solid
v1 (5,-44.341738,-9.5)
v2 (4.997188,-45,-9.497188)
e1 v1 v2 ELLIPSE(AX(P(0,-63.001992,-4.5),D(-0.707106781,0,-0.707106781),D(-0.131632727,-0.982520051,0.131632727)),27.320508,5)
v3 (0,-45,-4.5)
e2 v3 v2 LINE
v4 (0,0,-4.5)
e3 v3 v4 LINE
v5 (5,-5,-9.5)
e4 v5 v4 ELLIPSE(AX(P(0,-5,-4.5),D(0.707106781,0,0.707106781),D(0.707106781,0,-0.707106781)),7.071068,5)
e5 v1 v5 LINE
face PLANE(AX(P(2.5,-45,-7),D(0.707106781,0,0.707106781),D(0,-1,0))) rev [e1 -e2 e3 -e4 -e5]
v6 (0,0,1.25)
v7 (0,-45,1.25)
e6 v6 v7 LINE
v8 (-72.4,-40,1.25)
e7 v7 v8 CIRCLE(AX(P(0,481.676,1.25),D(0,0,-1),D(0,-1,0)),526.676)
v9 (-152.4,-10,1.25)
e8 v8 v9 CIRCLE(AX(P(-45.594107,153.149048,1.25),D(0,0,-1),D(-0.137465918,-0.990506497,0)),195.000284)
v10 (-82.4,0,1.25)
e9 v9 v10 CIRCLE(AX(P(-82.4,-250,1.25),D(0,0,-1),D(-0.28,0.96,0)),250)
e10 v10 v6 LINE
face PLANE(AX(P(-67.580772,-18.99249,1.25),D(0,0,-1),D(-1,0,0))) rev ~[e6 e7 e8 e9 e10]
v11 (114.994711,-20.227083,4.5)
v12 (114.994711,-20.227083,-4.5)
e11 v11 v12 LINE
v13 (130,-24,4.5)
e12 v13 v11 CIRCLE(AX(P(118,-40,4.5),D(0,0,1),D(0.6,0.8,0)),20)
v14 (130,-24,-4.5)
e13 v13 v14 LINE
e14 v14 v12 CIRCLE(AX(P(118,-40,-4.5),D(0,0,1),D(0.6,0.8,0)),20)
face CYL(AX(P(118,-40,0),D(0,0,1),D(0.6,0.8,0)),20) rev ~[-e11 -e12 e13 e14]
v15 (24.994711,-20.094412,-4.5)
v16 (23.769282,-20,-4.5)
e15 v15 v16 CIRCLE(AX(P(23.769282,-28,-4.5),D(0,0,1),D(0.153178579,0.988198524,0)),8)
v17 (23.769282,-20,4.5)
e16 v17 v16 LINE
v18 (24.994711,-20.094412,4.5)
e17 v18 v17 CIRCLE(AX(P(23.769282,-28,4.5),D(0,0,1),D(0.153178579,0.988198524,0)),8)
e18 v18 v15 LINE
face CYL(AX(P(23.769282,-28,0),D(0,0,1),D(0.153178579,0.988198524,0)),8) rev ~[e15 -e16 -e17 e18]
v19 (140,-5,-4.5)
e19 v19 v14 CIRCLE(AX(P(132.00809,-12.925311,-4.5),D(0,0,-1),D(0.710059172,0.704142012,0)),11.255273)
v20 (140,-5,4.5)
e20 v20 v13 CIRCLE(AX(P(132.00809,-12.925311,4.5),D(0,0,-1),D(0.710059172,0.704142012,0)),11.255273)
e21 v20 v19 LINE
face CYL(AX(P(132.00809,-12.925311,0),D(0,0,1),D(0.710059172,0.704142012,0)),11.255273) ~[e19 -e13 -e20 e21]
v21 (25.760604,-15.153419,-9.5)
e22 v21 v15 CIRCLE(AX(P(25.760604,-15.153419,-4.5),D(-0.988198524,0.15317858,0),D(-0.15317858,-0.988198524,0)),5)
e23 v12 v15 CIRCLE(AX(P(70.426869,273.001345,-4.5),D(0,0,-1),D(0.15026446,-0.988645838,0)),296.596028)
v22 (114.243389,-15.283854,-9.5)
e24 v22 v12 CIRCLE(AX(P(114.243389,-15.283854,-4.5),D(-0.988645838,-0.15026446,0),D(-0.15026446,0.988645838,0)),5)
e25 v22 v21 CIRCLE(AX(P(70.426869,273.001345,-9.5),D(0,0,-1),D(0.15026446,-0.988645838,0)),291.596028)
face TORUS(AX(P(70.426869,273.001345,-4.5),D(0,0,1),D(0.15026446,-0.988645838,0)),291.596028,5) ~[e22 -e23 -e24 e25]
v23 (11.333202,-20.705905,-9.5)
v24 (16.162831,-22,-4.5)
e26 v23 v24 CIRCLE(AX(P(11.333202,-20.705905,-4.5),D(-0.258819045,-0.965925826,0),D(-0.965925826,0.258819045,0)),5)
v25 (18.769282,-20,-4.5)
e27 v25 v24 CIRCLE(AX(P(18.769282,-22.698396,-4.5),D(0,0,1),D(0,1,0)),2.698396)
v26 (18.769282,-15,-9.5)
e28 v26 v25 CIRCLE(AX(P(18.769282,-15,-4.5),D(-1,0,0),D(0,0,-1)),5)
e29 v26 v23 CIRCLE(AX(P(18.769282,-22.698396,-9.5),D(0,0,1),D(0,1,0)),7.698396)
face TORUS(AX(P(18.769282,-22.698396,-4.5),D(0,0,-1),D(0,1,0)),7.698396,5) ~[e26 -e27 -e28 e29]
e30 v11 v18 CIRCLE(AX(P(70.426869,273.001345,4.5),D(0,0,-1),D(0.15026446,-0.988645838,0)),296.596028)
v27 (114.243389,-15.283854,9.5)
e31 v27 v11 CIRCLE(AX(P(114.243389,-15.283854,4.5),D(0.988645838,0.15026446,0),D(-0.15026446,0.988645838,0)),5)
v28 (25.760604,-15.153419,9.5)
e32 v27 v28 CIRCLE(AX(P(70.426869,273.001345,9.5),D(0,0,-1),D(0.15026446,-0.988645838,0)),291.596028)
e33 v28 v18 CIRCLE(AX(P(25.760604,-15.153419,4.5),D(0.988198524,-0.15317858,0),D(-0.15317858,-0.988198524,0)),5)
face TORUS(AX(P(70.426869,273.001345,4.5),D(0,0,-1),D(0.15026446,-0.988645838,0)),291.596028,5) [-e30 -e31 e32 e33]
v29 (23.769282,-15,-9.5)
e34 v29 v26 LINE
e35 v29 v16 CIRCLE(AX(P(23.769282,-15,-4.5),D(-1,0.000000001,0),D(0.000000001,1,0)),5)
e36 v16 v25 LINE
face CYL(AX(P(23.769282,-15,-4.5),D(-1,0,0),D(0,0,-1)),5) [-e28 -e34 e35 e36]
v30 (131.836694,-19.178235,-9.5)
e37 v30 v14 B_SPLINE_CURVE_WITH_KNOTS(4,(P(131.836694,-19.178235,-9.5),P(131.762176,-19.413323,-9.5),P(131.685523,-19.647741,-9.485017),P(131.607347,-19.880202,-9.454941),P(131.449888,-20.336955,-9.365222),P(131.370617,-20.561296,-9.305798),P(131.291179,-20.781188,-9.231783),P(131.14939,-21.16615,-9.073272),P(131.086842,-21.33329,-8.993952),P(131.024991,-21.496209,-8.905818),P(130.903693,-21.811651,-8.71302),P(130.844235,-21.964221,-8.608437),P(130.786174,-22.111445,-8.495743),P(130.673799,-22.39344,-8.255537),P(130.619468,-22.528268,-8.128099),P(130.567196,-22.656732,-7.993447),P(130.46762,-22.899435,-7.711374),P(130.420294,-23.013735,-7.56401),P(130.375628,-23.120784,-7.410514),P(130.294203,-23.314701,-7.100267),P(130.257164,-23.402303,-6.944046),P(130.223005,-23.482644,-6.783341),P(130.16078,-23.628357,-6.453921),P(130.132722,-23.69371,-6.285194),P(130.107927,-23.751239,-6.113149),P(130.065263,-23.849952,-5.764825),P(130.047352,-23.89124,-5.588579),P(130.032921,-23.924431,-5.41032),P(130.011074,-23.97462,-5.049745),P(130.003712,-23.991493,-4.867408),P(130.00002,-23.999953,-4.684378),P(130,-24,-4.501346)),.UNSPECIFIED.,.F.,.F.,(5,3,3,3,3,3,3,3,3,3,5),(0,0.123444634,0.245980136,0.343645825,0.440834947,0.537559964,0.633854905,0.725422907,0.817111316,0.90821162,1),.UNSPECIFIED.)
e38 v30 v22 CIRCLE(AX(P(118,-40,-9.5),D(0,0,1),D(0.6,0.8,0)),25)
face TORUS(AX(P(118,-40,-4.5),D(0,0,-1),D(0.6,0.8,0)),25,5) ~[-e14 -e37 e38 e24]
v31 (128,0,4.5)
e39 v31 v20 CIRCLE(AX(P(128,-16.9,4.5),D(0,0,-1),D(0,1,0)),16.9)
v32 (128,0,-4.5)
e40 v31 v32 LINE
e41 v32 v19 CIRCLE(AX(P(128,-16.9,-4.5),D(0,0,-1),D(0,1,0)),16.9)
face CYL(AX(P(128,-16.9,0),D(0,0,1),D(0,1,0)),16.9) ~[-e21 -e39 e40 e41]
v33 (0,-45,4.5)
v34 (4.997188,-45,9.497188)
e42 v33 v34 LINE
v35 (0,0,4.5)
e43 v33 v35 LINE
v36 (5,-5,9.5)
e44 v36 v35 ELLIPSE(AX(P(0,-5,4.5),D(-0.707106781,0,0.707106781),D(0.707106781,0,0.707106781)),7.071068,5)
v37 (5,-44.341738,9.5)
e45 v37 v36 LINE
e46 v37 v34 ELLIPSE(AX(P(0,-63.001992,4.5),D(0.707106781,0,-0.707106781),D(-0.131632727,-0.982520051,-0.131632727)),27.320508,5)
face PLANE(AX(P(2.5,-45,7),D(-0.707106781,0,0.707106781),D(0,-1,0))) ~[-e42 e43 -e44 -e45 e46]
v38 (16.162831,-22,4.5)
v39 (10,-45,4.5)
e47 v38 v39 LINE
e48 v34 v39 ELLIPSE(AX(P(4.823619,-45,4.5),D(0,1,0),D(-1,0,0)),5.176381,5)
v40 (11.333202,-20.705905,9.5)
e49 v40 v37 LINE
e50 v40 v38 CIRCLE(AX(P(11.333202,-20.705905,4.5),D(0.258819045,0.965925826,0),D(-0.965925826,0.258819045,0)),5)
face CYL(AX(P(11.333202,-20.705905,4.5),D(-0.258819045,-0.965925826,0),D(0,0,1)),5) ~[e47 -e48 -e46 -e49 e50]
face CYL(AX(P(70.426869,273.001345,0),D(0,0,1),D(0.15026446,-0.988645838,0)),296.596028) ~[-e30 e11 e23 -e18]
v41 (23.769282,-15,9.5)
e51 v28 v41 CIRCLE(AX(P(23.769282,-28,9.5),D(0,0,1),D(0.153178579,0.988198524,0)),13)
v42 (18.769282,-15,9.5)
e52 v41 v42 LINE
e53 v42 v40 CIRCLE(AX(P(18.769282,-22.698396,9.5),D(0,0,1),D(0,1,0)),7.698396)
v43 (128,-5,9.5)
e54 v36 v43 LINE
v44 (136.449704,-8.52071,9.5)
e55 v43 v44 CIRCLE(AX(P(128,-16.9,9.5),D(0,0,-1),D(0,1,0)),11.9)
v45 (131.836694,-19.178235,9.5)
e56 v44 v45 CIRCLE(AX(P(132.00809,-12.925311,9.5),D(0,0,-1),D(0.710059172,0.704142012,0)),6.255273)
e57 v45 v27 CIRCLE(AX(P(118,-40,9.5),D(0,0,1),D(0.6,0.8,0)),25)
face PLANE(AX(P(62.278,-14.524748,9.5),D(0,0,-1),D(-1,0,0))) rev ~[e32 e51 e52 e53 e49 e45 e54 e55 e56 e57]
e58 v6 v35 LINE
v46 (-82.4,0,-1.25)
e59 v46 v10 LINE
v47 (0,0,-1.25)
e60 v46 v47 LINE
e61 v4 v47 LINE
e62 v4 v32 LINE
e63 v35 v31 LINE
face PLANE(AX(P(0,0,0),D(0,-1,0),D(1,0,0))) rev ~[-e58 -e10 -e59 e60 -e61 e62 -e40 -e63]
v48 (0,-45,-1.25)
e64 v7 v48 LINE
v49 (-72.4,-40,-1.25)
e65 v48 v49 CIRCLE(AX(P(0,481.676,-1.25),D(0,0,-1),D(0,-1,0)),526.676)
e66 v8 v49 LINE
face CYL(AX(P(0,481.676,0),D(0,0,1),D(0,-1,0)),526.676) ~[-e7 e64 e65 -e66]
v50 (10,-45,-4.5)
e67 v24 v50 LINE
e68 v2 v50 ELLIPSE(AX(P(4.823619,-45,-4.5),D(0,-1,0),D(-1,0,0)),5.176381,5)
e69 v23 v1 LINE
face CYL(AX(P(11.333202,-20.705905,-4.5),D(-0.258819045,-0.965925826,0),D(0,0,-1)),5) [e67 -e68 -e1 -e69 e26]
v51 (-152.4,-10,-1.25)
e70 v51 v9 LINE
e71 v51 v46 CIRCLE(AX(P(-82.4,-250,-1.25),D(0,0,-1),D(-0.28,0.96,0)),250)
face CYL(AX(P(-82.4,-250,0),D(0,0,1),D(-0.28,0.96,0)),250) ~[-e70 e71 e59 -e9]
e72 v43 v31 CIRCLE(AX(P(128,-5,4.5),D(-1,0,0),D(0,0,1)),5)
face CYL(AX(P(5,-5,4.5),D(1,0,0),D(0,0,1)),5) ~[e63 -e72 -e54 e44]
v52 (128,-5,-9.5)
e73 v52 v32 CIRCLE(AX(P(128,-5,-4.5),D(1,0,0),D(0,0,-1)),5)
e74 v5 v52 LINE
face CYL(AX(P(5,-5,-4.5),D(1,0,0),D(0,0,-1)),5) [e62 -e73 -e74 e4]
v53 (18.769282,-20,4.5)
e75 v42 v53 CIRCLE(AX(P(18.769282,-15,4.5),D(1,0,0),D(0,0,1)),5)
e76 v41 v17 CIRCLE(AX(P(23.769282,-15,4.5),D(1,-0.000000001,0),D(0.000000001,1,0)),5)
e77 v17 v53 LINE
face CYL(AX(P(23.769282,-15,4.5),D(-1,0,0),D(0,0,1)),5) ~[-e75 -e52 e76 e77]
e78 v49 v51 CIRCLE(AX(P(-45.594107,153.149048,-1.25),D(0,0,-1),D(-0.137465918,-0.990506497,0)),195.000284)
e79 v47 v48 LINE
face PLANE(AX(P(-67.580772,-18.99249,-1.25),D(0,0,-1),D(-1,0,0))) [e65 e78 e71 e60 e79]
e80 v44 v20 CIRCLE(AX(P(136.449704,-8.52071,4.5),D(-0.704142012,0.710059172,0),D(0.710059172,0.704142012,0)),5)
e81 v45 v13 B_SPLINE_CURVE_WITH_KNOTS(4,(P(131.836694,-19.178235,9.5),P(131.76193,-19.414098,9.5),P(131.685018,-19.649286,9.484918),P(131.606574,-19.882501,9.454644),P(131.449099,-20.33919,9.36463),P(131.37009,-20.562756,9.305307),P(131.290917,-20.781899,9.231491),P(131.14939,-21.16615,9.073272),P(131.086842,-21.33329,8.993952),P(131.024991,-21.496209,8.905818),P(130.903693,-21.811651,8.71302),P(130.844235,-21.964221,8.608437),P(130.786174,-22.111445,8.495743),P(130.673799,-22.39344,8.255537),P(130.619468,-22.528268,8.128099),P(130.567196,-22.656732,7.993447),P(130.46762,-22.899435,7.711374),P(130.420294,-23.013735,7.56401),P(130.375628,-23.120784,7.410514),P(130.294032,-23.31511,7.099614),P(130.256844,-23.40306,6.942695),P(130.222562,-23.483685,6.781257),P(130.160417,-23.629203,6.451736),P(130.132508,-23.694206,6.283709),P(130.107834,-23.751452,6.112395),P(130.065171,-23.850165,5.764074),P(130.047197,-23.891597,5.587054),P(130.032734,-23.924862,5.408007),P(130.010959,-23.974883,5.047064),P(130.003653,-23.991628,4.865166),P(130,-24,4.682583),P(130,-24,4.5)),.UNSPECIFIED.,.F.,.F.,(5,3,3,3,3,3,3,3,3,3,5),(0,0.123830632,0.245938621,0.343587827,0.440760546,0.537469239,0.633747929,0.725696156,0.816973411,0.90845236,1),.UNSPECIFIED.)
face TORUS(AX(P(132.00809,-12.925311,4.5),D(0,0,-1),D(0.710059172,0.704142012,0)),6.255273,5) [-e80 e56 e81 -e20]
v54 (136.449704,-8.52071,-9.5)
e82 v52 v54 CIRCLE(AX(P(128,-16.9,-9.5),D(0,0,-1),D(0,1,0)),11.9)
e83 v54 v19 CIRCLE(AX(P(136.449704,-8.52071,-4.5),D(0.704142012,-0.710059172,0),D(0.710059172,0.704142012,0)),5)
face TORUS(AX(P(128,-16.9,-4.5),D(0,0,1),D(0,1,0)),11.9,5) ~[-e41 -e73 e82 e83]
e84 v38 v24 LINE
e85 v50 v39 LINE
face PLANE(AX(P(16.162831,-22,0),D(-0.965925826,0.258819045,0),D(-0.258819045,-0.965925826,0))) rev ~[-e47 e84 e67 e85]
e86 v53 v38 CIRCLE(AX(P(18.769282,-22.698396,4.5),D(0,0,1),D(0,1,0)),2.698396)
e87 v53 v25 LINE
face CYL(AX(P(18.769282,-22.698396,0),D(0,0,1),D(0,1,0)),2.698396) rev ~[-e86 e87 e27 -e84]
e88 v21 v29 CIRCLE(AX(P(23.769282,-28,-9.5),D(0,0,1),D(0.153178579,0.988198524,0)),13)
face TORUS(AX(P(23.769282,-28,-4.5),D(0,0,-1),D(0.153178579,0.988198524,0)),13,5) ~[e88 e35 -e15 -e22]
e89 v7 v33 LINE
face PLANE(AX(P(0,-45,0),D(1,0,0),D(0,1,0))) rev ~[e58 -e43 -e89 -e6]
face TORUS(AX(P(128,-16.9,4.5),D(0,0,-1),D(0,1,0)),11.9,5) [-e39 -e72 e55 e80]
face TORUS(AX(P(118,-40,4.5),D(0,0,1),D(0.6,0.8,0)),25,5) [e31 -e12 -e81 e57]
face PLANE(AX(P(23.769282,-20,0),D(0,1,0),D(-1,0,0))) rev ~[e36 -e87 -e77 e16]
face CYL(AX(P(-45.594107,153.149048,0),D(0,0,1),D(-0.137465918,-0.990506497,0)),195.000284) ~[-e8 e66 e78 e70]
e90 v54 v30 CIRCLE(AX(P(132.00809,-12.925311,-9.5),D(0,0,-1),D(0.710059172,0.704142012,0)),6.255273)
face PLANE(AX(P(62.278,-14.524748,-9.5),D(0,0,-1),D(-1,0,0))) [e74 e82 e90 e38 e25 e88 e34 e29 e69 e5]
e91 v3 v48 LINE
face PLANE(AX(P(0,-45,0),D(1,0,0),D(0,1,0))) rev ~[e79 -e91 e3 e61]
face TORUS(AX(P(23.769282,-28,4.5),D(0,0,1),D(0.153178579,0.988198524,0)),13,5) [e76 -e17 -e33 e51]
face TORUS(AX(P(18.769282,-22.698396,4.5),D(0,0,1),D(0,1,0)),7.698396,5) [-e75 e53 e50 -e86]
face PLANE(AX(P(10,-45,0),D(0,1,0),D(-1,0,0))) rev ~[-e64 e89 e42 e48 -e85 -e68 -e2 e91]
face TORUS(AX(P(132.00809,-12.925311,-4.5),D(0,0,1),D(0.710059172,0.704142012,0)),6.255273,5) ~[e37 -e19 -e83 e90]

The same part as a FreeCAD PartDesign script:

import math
import FreeCAD as App
import Part
import Sketcher

V = App.Vector
Q = App.Units.Quantity


def edges_at(feature, points):
    """Names of the edges that pass closest to the given points."""
    edges = feature.Shape.Edges
    near = lambda p: min(range(len(edges)), key=lambda i: edges[i].distToShape(Part.Vertex(*p))[0])
    return sorted({f"Edge{near(p) + 1}" for p in points})

doc = App.newDocument("Part")
body = doc.addObject("PartDesign::Body", "Body")

sketch1 = doc.addObject("Sketcher::SketchObject", "Sketch")
body.addObject(sketch1)
sketch1.AttachmentSupport = (doc.XY_Plane, [""])
sketch1.MapMode = "FlatFace"
sketch1.addGeometry(Part.LineSegment(V(0, -45, 0), V(0, 0, 0)), False)
sketch1.addGeometry(Part.LineSegment(V(0, 0, 0), V(-82.4, 0, 0)), False)
sketch1.addGeometry(Part.ArcOfCircle(Part.Circle(V(-82.4, -250, 0), V(0, 0, 1), 250), math.radians(90), math.radians(106.260205)), False)
sketch1.addGeometry(Part.ArcOfCircle(Part.Circle(V(-45.594107, 153.149048, 0), V(0, 0, 1), 195.000284), math.radians(-123.210854), math.radians(-97.901236)), False)
sketch1.addGeometry(Part.ArcOfCircle(Part.Circle(V(0, 481.676, 0), V(0, 0, 1), 526.676), math.radians(-97.901236), math.radians(-90)), False)
sketch1.addConstraint(Sketcher.Constraint("Coincident", 0, 2, 1, 1))
sketch1.addConstraint(Sketcher.Constraint("Tangent", 1, 2, 2, 1))
sketch1.addConstraint(Sketcher.Constraint("Coincident", 2, 2, 3, 1))
sketch1.addConstraint(Sketcher.Constraint("Tangent", 3, 2, 4, 1))
sketch1.addConstraint(Sketcher.Constraint("Coincident", 4, 2, 0, 1))
sketch1.addConstraint(Sketcher.Constraint("Vertical", 0))
sketch1.addConstraint(Sketcher.Constraint("Horizontal", 1))
sketch1.addConstraint(Sketcher.Constraint("Coincident", 0, 2, -1, 1))
sketch1.addConstraint(Sketcher.Constraint("PointOnObject", 4, 3, -2))
sketch1.addConstraint(Sketcher.Constraint("Radius", 2, 250.0))
sketch1.addConstraint(Sketcher.Constraint("DistanceY", 0, 1, 0, 2, 45.0))
sketch1.addConstraint(Sketcher.Constraint("DistanceX", 1, 2, 1, 1, 82.4))
sketch1.addConstraint(Sketcher.Constraint("DistanceY", 2, 2, -1, 1, 10.0))
sketch1.addConstraint(Sketcher.Constraint("Radius", 4, 526.676))
sketch1.addConstraint(Sketcher.Constraint("Radius", 3, 195.000284))
pad1 = doc.addObject("PartDesign::Pad", "Pad")
body.addObject(pad1)
pad1.Profile = sketch1
pad1.Length = 2.5
pad1.Midplane = True

sketch2 = doc.addObject("Sketcher::SketchObject", "Sketch001")
body.addObject(sketch2)
sketch2.AttachmentSupport = (doc.XY_Plane, [""])
sketch2.MapMode = "FlatFace"
sketch2.addGeometry(Part.LineSegment(V(128, 0, 0), V(0, 0, 0)), False)
sketch2.addGeometry(Part.LineSegment(V(0, 0, 0), V(0, -45, 0)), False)
sketch2.addGeometry(Part.LineSegment(V(0, -45, 0), V(10, -45, 0)), False)
sketch2.addGeometry(Part.LineSegment(V(10, -45, 0), V(16.162831, -22, 0)), False)
sketch2.addGeometry(Part.ArcOfCircle(Part.Circle(V(18.769282, -22.698396, 0), V(0, 0, 1), 2.698396), math.radians(90), math.radians(165)), False)
sketch2.addGeometry(Part.LineSegment(V(18.769282, -20, 0), V(23.769282, -20, 0)), False)
sketch2.addGeometry(Part.ArcOfCircle(Part.Circle(V(23.769282, -28, 0), V(0, 0, 1), 8), math.radians(81.188825), math.radians(90)), False)
sketch2.addGeometry(Part.ArcOfCircle(Part.Circle(V(70.426869, 273.001345, 0), V(0, 0, 1), 296.596028), math.radians(-98.811175), math.radians(-81.357747)), False)
sketch2.addGeometry(Part.ArcOfCircle(Part.Circle(V(118, -40, 0), V(0, 0, 1), 20), math.radians(53.130102), math.radians(98.642253)), False)
sketch2.addGeometry(Part.ArcOfCircle(Part.Circle(V(132.00809, -12.925311, 0), V(0, 0, 1), 11.255273), math.radians(-100.277351), math.radians(44.76027)), False)
sketch2.addGeometry(Part.ArcOfCircle(Part.Circle(V(128, -16.9, 0), V(0, 0, 1), 16.9), math.radians(44.76027), math.radians(90)), False)
sketch2.addConstraint(Sketcher.Constraint("Coincident", 0, 2, 1, 1))
sketch2.addConstraint(Sketcher.Constraint("Coincident", 1, 2, 2, 1))
sketch2.addConstraint(Sketcher.Constraint("Coincident", 2, 2, 3, 1))
sketch2.addConstraint(Sketcher.Constraint("Tangent", 3, 2, 4, 2))
sketch2.addConstraint(Sketcher.Constraint("Tangent", 4, 1, 5, 1))
sketch2.addConstraint(Sketcher.Constraint("Tangent", 5, 2, 6, 2))
sketch2.addConstraint(Sketcher.Constraint("Tangent", 6, 1, 7, 1))
sketch2.addConstraint(Sketcher.Constraint("Tangent", 7, 2, 8, 2))
sketch2.addConstraint(Sketcher.Constraint("Coincident", 8, 1, 9, 1))
sketch2.addConstraint(Sketcher.Constraint("Tangent", 9, 2, 10, 1))
sketch2.addConstraint(Sketcher.Constraint("Tangent", 10, 2, 0, 1))
sketch2.addConstraint(Sketcher.Constraint("Horizontal", 0))
sketch2.addConstraint(Sketcher.Constraint("Vertical", 1))
sketch2.addConstraint(Sketcher.Constraint("Horizontal", 2))
sketch2.addConstraint(Sketcher.Constraint("Horizontal", 5))
sketch2.addConstraint(Sketcher.Constraint("Coincident", 0, 2, -1, 1))
sketch2.addConstraint(Sketcher.Constraint("Radius", 6, 8.0))
sketch2.addConstraint(Sketcher.Constraint("Radius", 8, 20.0))
sketch2.addConstraint(Sketcher.Constraint("Radius", 10, 16.9))
sketch2.addConstraint(Sketcher.Constraint("DistanceX", 0, 2, 0, 1, 128.0))
sketch2.addConstraint(Sketcher.Constraint("DistanceX", 2, 1, 2, 2, 10.0))
sketch2.addConstraint(Sketcher.Constraint("DistanceX", 5, 1, 5, 2, 5.0))
sketch2.addConstraint(Sketcher.Constraint("DistanceY", 1, 2, 1, 1, 45.0))
sketch2.addConstraint(Sketcher.Constraint("Angle", 3, Q("75 deg")))
sketch2.addConstraint(Sketcher.Constraint("DistanceY", 6, 3, -1, 1, 28.0))
sketch2.addConstraint(Sketcher.Constraint("DistanceX", -1, 1, 8, 3, 118.0))
sketch2.addConstraint(Sketcher.Constraint("DistanceY", 8, 3, -1, 1, 40.0))
sketch2.addConstraint(Sketcher.Constraint("DistanceY", 3, 2, -1, 1, 22.0))
sketch2.addConstraint(Sketcher.Constraint("DistanceX", -1, 1, 8, 1, 130.0))
sketch2.addConstraint(Sketcher.Constraint("DistanceX", -1, 1, 9, 2, 140.0))
sketch2.addConstraint(Sketcher.Constraint("Radius", 7, 296.596028))
pad2 = doc.addObject("PartDesign::Pad", "Pad001")
body.addObject(pad2)
pad2.Profile = sketch2
pad2.Length = 19
pad2.Midplane = True
doc.recompute()

chamfer = doc.addObject("PartDesign::Chamfer", "Chamfer")
body.addObject(chamfer)
chamfer.Base = (pad2, edges_at(pad2, [(0, -22.5, -9.5), (0, -22.5, 9.5)]))
chamfer.Size = 5
doc.recompute()

fillet = doc.addObject("PartDesign::Fillet", "Fillet")
body.addObject(fillet)
fillet.Base = (chamfer, edges_at(chamfer, [
    (13.081, -33.5, -9.5),
    (17.127, -20.558, -9.5),
    (21.269, -20, -9.5),
    (24.384, -20.024, -9.5),
    (122.877, -20.604, -9.5),
    (141.968, -18.167, -9.5),
    (134.5, -1.3, -9.5),
    (13.081, -33.5, 9.5),
    (17.127, -20.558, 9.5),
    (21.269, -20, 9.5),
    (24.384, -20.024, 9.5),
    (122.877, -20.604, 9.5),
    (141.968, -18.167, 9.5),
    (134.5, -1.3, 9.5),
    (69.99, -23.594, -9.5),
    (66.5, 0, -9.5),
    (69.99, -23.594, 9.5),
    (66.5, 0, 9.5),
]))
fillet.Radius = 5

doc.recompute()
